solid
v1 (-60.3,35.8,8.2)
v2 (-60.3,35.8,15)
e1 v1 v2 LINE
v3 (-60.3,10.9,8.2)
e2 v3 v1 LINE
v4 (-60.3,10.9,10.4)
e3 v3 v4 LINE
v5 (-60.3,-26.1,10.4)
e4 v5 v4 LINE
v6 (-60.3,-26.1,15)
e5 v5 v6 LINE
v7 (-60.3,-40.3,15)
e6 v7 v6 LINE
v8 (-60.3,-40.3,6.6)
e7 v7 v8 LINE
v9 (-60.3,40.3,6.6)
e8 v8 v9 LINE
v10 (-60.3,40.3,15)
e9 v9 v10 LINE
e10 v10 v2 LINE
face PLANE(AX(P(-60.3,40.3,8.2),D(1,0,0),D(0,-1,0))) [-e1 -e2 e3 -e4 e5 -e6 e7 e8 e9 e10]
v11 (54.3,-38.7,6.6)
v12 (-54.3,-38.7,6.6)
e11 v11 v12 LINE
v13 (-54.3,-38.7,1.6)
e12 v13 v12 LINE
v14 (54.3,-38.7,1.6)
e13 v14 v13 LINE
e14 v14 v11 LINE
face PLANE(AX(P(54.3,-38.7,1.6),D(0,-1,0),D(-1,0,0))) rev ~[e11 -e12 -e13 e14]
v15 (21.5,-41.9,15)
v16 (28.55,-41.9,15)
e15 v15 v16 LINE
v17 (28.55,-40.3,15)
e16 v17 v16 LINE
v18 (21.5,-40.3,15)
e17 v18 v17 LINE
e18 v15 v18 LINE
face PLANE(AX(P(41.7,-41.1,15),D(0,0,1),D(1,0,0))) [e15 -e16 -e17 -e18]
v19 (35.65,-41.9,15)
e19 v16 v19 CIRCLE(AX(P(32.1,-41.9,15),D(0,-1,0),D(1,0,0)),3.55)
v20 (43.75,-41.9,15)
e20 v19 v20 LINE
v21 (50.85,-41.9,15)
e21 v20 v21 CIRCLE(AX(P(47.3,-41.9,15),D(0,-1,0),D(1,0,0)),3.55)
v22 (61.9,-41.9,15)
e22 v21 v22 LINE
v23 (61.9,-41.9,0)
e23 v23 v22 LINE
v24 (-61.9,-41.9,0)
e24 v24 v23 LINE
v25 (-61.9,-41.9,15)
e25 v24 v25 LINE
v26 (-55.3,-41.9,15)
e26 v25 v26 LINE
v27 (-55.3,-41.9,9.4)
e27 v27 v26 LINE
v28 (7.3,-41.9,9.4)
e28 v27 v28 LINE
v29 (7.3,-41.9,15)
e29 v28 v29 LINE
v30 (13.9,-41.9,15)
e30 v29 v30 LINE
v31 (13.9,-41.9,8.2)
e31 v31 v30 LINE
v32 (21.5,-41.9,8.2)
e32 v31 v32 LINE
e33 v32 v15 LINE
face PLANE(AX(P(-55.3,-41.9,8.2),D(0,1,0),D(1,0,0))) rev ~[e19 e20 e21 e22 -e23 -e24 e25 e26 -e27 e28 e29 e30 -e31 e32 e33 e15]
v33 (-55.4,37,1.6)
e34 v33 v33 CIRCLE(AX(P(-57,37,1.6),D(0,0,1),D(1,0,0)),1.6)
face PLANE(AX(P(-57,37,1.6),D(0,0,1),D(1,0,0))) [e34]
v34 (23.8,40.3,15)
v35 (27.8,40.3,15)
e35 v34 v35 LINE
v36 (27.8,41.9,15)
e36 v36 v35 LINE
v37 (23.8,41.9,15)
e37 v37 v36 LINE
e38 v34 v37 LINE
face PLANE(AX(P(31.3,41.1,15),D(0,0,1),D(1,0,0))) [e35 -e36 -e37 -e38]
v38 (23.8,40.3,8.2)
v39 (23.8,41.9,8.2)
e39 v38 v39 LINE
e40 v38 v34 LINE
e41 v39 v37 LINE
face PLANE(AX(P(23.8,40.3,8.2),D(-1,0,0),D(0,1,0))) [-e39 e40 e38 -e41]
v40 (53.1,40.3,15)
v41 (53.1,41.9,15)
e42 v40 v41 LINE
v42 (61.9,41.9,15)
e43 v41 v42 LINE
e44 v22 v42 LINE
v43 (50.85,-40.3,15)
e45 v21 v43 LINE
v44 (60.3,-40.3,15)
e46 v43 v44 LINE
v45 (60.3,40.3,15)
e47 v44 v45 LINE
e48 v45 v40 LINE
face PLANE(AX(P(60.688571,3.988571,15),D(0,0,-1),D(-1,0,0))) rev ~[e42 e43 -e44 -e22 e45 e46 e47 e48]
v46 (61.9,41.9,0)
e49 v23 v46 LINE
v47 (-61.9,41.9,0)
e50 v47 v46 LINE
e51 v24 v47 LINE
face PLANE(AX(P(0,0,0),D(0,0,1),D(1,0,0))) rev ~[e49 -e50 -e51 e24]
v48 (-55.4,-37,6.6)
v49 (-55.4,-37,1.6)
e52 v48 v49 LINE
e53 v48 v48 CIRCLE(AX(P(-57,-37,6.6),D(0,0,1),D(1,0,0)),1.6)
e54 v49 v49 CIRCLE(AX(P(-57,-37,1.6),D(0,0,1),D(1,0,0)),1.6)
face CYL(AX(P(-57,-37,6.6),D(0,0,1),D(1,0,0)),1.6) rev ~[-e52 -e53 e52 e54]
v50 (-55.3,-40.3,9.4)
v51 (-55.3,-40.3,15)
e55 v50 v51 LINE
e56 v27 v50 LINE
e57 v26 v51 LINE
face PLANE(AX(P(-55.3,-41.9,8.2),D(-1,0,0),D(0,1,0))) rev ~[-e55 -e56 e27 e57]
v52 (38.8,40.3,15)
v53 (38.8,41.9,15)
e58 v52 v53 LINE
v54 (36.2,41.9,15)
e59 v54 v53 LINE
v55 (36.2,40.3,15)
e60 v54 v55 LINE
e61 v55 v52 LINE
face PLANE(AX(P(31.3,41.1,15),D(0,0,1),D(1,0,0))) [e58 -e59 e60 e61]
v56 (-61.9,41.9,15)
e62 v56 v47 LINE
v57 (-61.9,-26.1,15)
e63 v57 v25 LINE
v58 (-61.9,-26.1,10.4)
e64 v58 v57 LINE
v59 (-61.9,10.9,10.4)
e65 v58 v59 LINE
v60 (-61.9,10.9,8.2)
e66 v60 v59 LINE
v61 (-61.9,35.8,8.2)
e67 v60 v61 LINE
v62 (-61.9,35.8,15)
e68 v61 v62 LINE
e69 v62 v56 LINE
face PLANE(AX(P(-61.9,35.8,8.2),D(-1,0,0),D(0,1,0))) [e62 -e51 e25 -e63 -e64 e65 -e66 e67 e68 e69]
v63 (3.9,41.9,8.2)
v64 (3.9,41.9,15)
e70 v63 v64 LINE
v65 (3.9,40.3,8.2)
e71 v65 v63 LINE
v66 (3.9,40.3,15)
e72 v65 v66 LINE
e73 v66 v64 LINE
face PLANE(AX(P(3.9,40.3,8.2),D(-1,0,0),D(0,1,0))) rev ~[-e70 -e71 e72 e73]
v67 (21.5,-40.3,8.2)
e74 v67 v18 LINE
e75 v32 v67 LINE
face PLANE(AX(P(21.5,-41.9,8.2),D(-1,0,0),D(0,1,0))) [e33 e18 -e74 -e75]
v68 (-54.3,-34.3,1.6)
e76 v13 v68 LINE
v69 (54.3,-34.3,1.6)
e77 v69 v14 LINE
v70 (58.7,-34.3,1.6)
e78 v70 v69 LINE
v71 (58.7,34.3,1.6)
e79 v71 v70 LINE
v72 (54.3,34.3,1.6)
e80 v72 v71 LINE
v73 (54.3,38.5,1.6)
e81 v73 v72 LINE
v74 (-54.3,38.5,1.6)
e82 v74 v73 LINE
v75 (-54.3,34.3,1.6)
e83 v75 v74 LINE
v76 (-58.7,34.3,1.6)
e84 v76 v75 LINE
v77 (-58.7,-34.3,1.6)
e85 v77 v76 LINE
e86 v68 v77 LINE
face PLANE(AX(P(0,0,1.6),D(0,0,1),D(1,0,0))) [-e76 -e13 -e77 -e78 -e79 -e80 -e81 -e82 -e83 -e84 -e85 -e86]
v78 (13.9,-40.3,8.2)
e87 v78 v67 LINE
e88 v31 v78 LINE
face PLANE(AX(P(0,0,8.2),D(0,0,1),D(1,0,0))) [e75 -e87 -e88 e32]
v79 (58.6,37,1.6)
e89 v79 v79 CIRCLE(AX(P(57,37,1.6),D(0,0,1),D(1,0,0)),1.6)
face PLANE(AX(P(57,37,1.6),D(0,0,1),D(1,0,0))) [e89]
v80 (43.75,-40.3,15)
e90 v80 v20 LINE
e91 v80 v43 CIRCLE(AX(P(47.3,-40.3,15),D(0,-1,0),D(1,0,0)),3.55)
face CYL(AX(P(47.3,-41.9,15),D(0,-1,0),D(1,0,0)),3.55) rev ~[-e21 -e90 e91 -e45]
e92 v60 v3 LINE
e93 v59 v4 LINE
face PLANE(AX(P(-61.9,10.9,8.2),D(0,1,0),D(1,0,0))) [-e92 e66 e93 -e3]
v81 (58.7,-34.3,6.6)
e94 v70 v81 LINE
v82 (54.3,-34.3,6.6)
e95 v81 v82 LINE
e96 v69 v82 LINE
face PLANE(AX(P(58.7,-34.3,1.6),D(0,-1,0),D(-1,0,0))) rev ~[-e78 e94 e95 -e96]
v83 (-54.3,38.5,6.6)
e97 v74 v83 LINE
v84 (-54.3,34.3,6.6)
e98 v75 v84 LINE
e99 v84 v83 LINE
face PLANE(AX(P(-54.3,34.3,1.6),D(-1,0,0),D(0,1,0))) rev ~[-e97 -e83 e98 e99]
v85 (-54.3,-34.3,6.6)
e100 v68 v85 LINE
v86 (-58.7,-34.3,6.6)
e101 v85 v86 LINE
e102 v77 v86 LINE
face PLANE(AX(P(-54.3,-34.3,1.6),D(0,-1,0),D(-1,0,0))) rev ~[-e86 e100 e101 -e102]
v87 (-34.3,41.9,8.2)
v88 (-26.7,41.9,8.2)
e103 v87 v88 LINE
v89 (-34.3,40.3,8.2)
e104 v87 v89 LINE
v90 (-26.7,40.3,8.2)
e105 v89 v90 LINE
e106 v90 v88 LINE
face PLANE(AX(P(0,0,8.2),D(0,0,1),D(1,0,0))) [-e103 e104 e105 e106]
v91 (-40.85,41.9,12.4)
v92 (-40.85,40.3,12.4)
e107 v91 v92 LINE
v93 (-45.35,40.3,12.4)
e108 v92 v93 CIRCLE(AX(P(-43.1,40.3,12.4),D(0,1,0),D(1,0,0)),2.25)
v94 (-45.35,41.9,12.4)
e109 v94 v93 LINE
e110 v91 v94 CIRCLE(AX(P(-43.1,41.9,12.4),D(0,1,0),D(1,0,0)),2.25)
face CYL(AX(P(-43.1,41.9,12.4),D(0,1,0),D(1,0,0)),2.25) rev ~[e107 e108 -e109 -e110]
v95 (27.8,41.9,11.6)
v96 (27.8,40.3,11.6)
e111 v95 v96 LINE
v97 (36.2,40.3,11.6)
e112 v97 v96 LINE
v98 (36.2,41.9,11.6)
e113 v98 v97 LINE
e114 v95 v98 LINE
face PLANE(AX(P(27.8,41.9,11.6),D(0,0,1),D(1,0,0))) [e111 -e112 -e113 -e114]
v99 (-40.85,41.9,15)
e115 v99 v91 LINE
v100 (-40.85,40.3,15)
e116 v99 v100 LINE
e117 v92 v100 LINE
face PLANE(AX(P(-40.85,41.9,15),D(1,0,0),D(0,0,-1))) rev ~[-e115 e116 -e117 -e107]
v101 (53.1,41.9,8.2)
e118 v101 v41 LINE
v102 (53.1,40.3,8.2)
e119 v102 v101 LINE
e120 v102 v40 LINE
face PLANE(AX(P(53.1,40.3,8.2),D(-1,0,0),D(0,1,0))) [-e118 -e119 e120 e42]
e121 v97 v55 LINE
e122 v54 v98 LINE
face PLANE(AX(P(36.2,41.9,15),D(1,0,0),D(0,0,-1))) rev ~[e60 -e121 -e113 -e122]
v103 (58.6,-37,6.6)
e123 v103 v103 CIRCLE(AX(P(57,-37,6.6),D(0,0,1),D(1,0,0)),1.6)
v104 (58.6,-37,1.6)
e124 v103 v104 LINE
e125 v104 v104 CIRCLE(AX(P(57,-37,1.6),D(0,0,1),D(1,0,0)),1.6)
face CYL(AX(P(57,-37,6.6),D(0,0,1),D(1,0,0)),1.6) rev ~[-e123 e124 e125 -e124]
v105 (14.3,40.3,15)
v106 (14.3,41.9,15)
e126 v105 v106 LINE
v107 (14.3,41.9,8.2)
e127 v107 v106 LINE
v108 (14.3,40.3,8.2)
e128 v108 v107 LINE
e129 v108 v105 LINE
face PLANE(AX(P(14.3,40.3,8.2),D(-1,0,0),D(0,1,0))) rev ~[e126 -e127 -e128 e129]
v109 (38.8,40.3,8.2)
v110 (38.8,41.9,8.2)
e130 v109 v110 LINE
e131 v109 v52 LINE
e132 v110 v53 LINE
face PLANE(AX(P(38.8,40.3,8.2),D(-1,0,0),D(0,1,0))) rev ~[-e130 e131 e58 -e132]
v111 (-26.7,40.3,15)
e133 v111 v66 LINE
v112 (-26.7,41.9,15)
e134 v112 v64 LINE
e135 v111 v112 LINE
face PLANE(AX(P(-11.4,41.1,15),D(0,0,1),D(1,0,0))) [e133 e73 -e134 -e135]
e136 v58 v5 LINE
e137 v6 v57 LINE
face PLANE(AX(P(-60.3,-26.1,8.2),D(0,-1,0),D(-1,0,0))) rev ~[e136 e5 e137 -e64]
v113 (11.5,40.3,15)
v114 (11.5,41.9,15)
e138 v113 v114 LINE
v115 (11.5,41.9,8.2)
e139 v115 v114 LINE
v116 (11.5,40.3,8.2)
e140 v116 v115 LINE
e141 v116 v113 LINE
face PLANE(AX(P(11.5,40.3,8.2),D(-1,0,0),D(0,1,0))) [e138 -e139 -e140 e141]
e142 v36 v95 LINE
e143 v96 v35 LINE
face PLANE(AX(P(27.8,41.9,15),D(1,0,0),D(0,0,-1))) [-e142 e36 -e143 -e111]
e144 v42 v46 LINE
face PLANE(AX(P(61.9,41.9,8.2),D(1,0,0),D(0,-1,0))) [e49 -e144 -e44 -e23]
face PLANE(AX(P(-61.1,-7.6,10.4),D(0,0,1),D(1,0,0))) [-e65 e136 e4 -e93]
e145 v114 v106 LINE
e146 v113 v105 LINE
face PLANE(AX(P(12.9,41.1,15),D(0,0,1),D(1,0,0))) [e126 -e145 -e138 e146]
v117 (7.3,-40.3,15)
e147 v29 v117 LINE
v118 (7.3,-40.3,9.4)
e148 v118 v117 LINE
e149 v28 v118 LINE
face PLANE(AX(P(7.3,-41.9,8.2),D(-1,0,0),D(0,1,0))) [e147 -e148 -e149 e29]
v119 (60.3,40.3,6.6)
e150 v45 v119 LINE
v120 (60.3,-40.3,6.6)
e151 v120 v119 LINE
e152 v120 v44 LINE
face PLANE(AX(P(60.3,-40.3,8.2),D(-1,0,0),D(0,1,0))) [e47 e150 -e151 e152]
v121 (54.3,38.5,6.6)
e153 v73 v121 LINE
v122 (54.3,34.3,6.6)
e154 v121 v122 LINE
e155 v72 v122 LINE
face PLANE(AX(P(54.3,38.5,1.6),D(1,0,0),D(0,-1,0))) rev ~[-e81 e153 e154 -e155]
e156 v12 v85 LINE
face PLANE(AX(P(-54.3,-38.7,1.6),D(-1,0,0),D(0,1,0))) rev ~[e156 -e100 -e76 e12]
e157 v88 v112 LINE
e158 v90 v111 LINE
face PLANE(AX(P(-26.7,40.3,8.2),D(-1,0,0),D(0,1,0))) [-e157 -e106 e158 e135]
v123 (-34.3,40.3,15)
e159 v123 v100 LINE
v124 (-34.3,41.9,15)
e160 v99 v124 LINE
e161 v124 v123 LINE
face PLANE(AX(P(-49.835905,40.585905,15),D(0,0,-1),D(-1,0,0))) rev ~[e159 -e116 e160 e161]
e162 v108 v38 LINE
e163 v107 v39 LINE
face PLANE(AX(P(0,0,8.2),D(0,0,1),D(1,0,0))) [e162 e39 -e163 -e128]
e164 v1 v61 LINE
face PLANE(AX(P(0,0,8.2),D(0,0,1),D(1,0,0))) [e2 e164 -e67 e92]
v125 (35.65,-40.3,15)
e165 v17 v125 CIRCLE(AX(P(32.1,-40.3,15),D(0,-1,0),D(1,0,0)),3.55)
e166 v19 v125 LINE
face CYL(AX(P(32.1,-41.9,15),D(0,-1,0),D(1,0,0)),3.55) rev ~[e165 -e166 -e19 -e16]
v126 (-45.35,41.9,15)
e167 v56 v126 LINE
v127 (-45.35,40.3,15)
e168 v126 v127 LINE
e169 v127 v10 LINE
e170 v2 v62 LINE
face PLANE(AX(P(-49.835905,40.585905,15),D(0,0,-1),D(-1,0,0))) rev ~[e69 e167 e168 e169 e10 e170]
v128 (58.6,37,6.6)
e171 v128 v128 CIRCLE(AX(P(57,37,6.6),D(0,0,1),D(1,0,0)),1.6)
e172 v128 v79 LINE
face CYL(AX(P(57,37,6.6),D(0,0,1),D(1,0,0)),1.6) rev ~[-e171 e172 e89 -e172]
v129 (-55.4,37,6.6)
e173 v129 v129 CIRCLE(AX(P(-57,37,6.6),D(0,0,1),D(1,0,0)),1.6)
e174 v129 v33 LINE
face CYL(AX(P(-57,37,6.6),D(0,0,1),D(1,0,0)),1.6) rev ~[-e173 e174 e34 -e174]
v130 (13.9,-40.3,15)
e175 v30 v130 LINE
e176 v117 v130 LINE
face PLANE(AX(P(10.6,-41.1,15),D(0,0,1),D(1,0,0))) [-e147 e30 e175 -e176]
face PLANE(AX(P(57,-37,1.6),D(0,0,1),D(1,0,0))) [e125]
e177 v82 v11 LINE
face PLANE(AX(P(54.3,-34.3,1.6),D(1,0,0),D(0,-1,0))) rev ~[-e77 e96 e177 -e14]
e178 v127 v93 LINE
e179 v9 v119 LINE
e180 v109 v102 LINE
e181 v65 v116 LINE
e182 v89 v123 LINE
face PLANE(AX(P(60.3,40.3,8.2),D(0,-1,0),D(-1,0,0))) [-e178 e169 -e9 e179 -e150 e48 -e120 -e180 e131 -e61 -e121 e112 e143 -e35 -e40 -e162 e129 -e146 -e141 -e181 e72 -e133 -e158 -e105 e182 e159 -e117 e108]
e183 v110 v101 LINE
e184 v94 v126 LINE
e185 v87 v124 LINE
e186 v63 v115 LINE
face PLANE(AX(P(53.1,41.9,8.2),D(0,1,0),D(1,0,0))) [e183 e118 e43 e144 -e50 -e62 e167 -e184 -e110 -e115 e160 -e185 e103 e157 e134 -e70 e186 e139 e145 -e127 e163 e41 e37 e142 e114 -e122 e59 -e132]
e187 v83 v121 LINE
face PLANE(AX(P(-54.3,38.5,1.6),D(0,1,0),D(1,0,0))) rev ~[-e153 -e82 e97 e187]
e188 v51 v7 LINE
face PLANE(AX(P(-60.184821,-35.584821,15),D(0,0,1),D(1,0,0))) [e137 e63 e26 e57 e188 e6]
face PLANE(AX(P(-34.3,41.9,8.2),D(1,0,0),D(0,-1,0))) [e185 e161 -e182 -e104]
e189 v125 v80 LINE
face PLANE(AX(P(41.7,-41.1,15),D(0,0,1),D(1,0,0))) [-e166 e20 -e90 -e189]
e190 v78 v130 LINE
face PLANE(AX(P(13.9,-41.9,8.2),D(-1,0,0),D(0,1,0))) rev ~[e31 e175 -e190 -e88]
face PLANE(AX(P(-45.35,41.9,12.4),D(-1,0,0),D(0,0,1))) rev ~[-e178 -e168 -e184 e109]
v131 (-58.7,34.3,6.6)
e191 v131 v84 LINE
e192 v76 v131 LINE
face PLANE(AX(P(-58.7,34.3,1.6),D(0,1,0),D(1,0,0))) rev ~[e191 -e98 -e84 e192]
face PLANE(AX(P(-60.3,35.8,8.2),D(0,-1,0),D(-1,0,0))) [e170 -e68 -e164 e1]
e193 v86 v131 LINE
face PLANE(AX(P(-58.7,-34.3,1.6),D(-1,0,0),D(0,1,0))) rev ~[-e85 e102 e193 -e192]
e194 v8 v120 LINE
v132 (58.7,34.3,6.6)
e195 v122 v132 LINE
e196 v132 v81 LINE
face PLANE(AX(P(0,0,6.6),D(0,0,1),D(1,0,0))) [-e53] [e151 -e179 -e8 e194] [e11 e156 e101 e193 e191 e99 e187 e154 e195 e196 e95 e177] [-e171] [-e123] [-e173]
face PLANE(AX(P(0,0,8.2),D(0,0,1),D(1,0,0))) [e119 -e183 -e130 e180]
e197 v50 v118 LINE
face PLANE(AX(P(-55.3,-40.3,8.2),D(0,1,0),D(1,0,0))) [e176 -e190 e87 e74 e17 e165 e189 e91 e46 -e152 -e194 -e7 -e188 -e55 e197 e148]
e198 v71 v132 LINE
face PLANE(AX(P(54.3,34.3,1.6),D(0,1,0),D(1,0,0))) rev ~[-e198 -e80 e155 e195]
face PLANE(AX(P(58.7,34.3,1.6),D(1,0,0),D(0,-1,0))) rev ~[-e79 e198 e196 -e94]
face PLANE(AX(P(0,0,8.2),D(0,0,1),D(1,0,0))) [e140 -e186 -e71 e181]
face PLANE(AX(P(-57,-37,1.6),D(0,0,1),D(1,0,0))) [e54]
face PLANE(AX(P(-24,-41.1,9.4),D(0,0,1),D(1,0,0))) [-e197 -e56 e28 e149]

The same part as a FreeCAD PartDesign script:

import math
import FreeCAD as App
import Part
import Sketcher

V = App.Vector
Q = App.Units.Quantity

doc = App.newDocument("Part")
body = doc.addObject("PartDesign::Body", "Body")

sketch1 = doc.addObject("Sketcher::SketchObject", "Sketch")
body.addObject(sketch1)
sketch1.AttachmentSupport = (doc.XY_Plane, [""])
sketch1.MapMode = "FlatFace"
sketch1.addGeometry([
    Part.LineSegment(V(-60.3, 40.3, 0), V(-60.3, -40.3, 0)),
    Part.LineSegment(V(-60.3, -40.3, 0), V(60.3, -40.3, 0)),
    Part.LineSegment(V(60.3, -40.3, 0), V(60.3, 40.3, 0)),
    Part.LineSegment(V(60.3, 40.3, 0), V(-60.3, 40.3, 0)),
], False)
sketch1.addConstraint([
    Sketcher.Constraint("Coincident", 0, 2, 1, 1),
    Sketcher.Constraint("Coincident", 1, 2, 2, 1),
    Sketcher.Constraint("Coincident", 2, 2, 3, 1),
    Sketcher.Constraint("Coincident", 3, 2, 0, 1),
    Sketcher.Constraint("Vertical", 0),
    Sketcher.Constraint("Horizontal", 1),
    Sketcher.Constraint("Vertical", 2),
    Sketcher.Constraint("Horizontal", 3),
    Sketcher.Constraint("Symmetric", 0, 2, 2, 2, -1, 1),
    Sketcher.Constraint("DistanceX", 1, 1, 1, 2, Q("120.6 mm")),
    Sketcher.Constraint("DistanceY", 0, 2, 0, 1, Q("80.6 mm")),
])
pad1 = doc.addObject("PartDesign::Pad", "Pad")
body.addObject(pad1)
pad1.Profile = sketch1
pad1.Length = 1.6

sketch2 = doc.addObject("Sketcher::SketchObject", "Sketch001")
body.addObject(sketch2)
sketch2.AttachmentSupport = (doc.XY_Plane, [""])
sketch2.MapMode = "FlatFace"
sketch2.addGeometry([
    Part.LineSegment(V(-61.9, 41.9, 0), V(-61.9, -41.9, 0)),
    Part.LineSegment(V(-61.9, -41.9, 0), V(61.9, -41.9, 0)),
    Part.LineSegment(V(61.9, -41.9, 0), V(61.9, 41.9, 0)),
    Part.LineSegment(V(61.9, 41.9, 0), V(-61.9, 41.9, 0)),
    Part.LineSegment(V(60.3, -40.3, 0), V(-60.3, -40.3, 0)),
    Part.LineSegment(V(-60.3, -40.3, 0), V(-60.3, 40.3, 0)),
    Part.LineSegment(V(-60.3, 40.3, 0), V(60.3, 40.3, 0)),
    Part.LineSegment(V(60.3, 40.3, 0), V(60.3, -40.3, 0)),
], False)
sketch2.addConstraint([
    Sketcher.Constraint("Coincident", 0, 2, 1, 1),
    Sketcher.Constraint("Coincident", 1, 2, 2, 1),
    Sketcher.Constraint("Coincident", 2, 2, 3, 1),
    Sketcher.Constraint("Coincident", 3, 2, 0, 1),
    Sketcher.Constraint("Coincident", 4, 2, 5, 1),
    Sketcher.Constraint("Coincident", 5, 2, 6, 1),
    Sketcher.Constraint("Coincident", 6, 2, 7, 1),
    Sketcher.Constraint("Coincident", 7, 2, 4, 1),
    Sketcher.Constraint("Vertical", 0),
    Sketcher.Constraint("Horizontal", 1),
    Sketcher.Constraint("Vertical", 2),
    Sketcher.Constraint("Horizontal", 3),
    Sketcher.Constraint("Horizontal", 4),
    Sketcher.Constraint("Vertical", 5),
    Sketcher.Constraint("Horizontal", 6),
    Sketcher.Constraint("Vertical", 7),
    Sketcher.Constraint("Symmetric", 0, 2, 2, 2, -1, 1),
    Sketcher.Constraint("Symmetric", 4, 2, 6, 2, -1, 1),
    Sketcher.Constraint("DistanceX", 1, 1, 1, 2, Q("123.8 mm")),
    Sketcher.Constraint("DistanceX", 4, 2, 4, 1, Q("120.6 mm")),
    Sketcher.Constraint("DistanceY", 0, 2, 0, 1, Q("83.8 mm")),
    Sketcher.Constraint("DistanceY", 5, 1, 5, 2, Q("80.6 mm")),
])
pad2 = doc.addObject("PartDesign::Pad", "Pad001")
body.addObject(pad2)
pad2.Profile = sketch2
pad2.Length = 8.2

sketch3 = doc.addObject("Sketcher::SketchObject", "Sketch002")
body.addObject(sketch3)
sketch3.AttachmentSupport = (doc.XY_Plane, [""])
sketch3.MapMode = "FlatFace"
sketch3.AttachmentOffset = App.Placement(V(0, 0, 1.6), App.Rotation())
sketch3.addGeometry([
    Part.LineSegment(V(-60.3, 40.3, 0), V(-60.3, -40.3, 0)),
    Part.LineSegment(V(-60.3, -40.3, 0), V(60.3, -40.3, 0)),
    Part.LineSegment(V(60.3, -40.3, 0), V(60.3, 40.3, 0)),
    Part.LineSegment(V(60.3, 40.3, 0), V(-60.3, 40.3, 0)),
    Part.LineSegment(V(-58.7, -34.3, 0), V(-58.7, 34.3, 0)),
    Part.LineSegment(V(-58.7, 34.3, 0), V(-54.3, 34.3, 0)),
    Part.LineSegment(V(-54.3, 34.3, 0), V(-54.3, 38.5, 0)),
    Part.LineSegment(V(-54.3, 38.5, 0), V(54.3, 38.5, 0)),
    Part.LineSegment(V(54.3, 38.5, 0), V(54.3, 34.3, 0)),
    Part.LineSegment(V(54.3, 34.3, 0), V(58.7, 34.3, 0)),
    Part.LineSegment(V(58.7, 34.3, 0), V(58.7, -34.3, 0)),
    Part.LineSegment(V(58.7, -34.3, 0), V(54.3, -34.3, 0)),
    Part.LineSegment(V(54.3, -34.3, 0), V(54.3, -38.7, 0)),
    Part.LineSegment(V(54.3, -38.7, 0), V(-54.3, -38.7, 0)),
    Part.LineSegment(V(-54.3, -38.7, 0), V(-54.3, -34.3, 0)),
    Part.LineSegment(V(-54.3, -34.3, 0), V(-58.7, -34.3, 0)),
], False)
sketch3.addConstraint([
    Sketcher.Constraint("Coincident", 0, 2, 1, 1),
    Sketcher.Constraint("Coincident", 1, 2, 2, 1),
    Sketcher.Constraint("Coincident", 2, 2, 3, 1),
    Sketcher.Constraint("Coincident", 3, 2, 0, 1),
    Sketcher.Constraint("Coincident", 4, 2, 5, 1),
    Sketcher.Constraint("Coincident", 5, 2, 6, 1),
    Sketcher.Constraint("Coincident", 6, 2, 7, 1),
    Sketcher.Constraint("Coincident", 7, 2, 8, 1),
    Sketcher.Constraint("Coincident", 8, 2, 9, 1),
    Sketcher.Constraint("Coincident", 9, 2, 10, 1),
    Sketcher.Constraint("Coincident", 10, 2, 11, 1),
    Sketcher.Constraint("Coincident", 11, 2, 12, 1),
    Sketcher.Constraint("Coincident", 12, 2, 13, 1),
    Sketcher.Constraint("Coincident", 13, 2, 14, 1),
    Sketcher.Constraint("Coincident", 14, 2, 15, 1),
    Sketcher.Constraint("Coincident", 15, 2, 4, 1),
    Sketcher.Constraint("Vertical", 0),
    Sketcher.Constraint("Horizontal", 1),
    Sketcher.Constraint("Vertical", 2),
    Sketcher.Constraint("Horizontal", 3),
    Sketcher.Constraint("Vertical", 4),
    Sketcher.Constraint("Horizontal", 5),
    Sketcher.Constraint("Vertical", 6),
    Sketcher.Constraint("Horizontal", 7),
    Sketcher.Constraint("Vertical", 8),
    Sketcher.Constraint("Horizontal", 9),
    Sketcher.Constraint("Vertical", 10),
    Sketcher.Constraint("Horizontal", 11),
    Sketcher.Constraint("Vertical", 12),
    Sketcher.Constraint("Horizontal", 13),
    Sketcher.Constraint("Vertical", 14),
    Sketcher.Constraint("Horizontal", 15),
    Sketcher.Constraint("Symmetric", 0, 2, 2, 2, -1, 1),
    Sketcher.Constraint("Symmetric", 4, 2, 10, 2, -1, 1),
    Sketcher.Constraint("Symmetric", 8, 2, 14, 2, -1, 1),
    Sketcher.Constraint("Symmetric", 5, 2, 8, 2, -2),
    Sketcher.Constraint("Vertical", 8, 2, 11, 2),
    Sketcher.Constraint("Equal", 15, 12),
    Sketcher.Constraint("DistanceX", 1, 1, 1, 2, Q("120.6 mm")),
    Sketcher.Constraint("DistanceX", 5, 1, 5, 2, Q("4.4 mm")),
    Sketcher.Constraint("DistanceX", 7, 1, 7, 2, Q("108.6 mm")),
    Sketcher.Constraint("DistanceY", 0, 2, 0, 1, Q("80.6 mm")),
    Sketcher.Constraint("DistanceY", 4, 1, 4, 2, Q("68.6 mm")),
    Sketcher.Constraint("DistanceY", 6, 1, 6, 2, Q("4.2 mm")),
])
pad3 = doc.addObject("PartDesign::Pad", "Pad002")
body.addObject(pad3)
pad3.Profile = sketch3
pad3.Length = 5

sketch4 = doc.addObject("Sketcher::SketchObject", "Sketch003")
body.addObject(sketch4)
sketch4.AttachmentSupport = (doc.XY_Plane, [""])
sketch4.MapMode = "FlatFace"
sketch4.AttachmentOffset = App.Placement(V(0, 0, 6.6), App.Rotation())
sketch4.addGeometry([
    Part.Circle(V(-57, 37, 0), V(0, 0, 1), 1.6),
    Part.Circle(V(57, 37, 0), V(0, 0, 1), 1.6),
    Part.Circle(V(57, -37, 0), V(0, 0, 1), 1.6),
    Part.Circle(V(-57, -37, 0), V(0, 0, 1), 1.6),
], False)
sketch4.addConstraint([
    Sketcher.Constraint("Equal", 0, 1),
    Sketcher.Constraint("Equal", 1, 2),
    Sketcher.Constraint("Equal", 2, 3),
    Sketcher.Constraint("Symmetric", 0, 3, 2, 3, -1, 1),
    Sketcher.Constraint("Symmetric", 1, 3, 3, 3, -1, 1),
    Sketcher.Constraint("Symmetric", 0, 3, 1, 3, -2),
    Sketcher.Constraint("Diameter", 0, Q("3.2 mm")),
    Sketcher.Constraint("DistanceX", 0, 3, -1, 1, Q("57 mm")),
    Sketcher.Constraint("DistanceY", -1, 1, 0, 3, Q("37 mm")),
])
pocket1 = doc.addObject("PartDesign::Pocket", "Pocket")
body.addObject(pocket1)
pocket1.Profile = sketch4
pocket1.Length = 5

sketch5 = doc.addObject("Sketcher::SketchObject", "Sketch004")
body.addObject(sketch5)
sketch5.AttachmentSupport = (doc.XY_Plane, [""])
sketch5.MapMode = "FlatFace"
sketch5.AttachmentOffset = App.Placement(V(0, 0, 8.2), App.Rotation())
sketch5.addGeometry([
    Part.LineSegment(V(21.5, -40.3, 0), V(21.5, -41.9, 0)),
    Part.LineSegment(V(21.5, -41.9, 0), V(61.9, -41.9, 0)),
    Part.LineSegment(V(61.9, -41.9, 0), V(61.9, -40.3, 0)),
    Part.LineSegment(V(61.9, -40.3, 0), V(21.5, -40.3, 0)),
    Part.LineSegment(V(7.3, -40.3, 0), V(7.3, -41.9, 0)),
    Part.LineSegment(V(7.3, -41.9, 0), V(13.9, -41.9, 0)),
    Part.LineSegment(V(13.9, -41.9, 0), V(13.9, -40.3, 0)),
    Part.LineSegment(V(13.9, -40.3, 0), V(7.3, -40.3, 0)),
], False)
sketch5.addConstraint([
    Sketcher.Constraint("Coincident", 0, 2, 1, 1),
    Sketcher.Constraint("Coincident", 1, 2, 2, 1),
    Sketcher.Constraint("Coincident", 2, 2, 3, 1),
    Sketcher.Constraint("Coincident", 3, 2, 0, 1),
    Sketcher.Constraint("Coincident", 4, 2, 5, 1),
    Sketcher.Constraint("Coincident", 5, 2, 6, 1),
    Sketcher.Constraint("Coincident", 6, 2, 7, 1),
    Sketcher.Constraint("Coincident", 7, 2, 4, 1),
    Sketcher.Constraint("Vertical", 0),
    Sketcher.Constraint("Horizontal", 1),
    Sketcher.Constraint("Vertical", 2),
    Sketcher.Constraint("Horizontal", 3),
    Sketcher.Constraint("Vertical", 4),
    Sketcher.Constraint("Horizontal", 5),
    Sketcher.Constraint("Vertical", 6),
    Sketcher.Constraint("Horizontal", 7),
    Sketcher.Constraint("Horizontal", 1, 2, 4, 2),
    Sketcher.Constraint("Horizontal", 3, 2, 6, 2),
    Sketcher.Constraint("DistanceX", 1, 1, 1, 2, Q("40.4 mm")),
    Sketcher.Constraint("DistanceX", 5, 1, 5, 2, Q("6.6 mm")),
    Sketcher.Constraint("DistanceY", 0, 2, 0, 1, Q("1.6 mm")),
    Sketcher.Constraint("DistanceX", 5, 2, 1, 2, Q("48 mm")),
    Sketcher.Constraint("DistanceX", -1, 1, 0, 2, Q("21.5 mm")),
    Sketcher.Constraint("DistanceY", 0, 2, -1, 1, Q("41.9 mm")),
])
pad4 = doc.addObject("PartDesign::Pad", "Pad003")
body.addObject(pad4)
pad4.Profile = sketch5
pad4.Length = 6.8

sketch6 = doc.addObject("Sketcher::SketchObject", "Sketch005")
body.addObject(sketch6)
sketch6.AttachmentSupport = (doc.XZ_Plane, [""])
sketch6.MapMode = "FlatFace"
sketch6.AttachmentOffset = App.Placement(V(0, 0, 41.9), App.Rotation())
sketch6.addGeometry([
    Part.Circle(V(32.1, 15, 0), V(0, 0, 1), 3.55),
    Part.Circle(V(47.3, 15, 0), V(0, 0, 1), 3.55),
], False)
sketch6.addConstraint([
    Sketcher.Constraint("Equal", 0, 1),
    Sketcher.Constraint("Horizontal", 0, 3, 1, 3),
    Sketcher.Constraint("Diameter", 0, Q("7.1 mm")),
    Sketcher.Constraint("DistanceY", -1, 1, 0, 3, Q("15 mm")),
    Sketcher.Constraint("DistanceX", -1, 1, 0, 3, Q("32.1 mm")),
    Sketcher.Constraint("DistanceX", -1, 1, 1, 3, Q("47.3 mm")),
])
pocket2 = doc.addObject("PartDesign::Pocket", "Pocket001")
body.addObject(pocket2)
pocket2.Profile = sketch6
pocket2.Length = 6.8

sketch7 = doc.addObject("Sketcher::SketchObject", "Sketch006")
body.addObject(sketch7)
sketch7.AttachmentSupport = (doc.XY_Plane, [""])
sketch7.MapMode = "FlatFace"
sketch7.AttachmentOffset = App.Placement(V(0, 0, 8.2), App.Rotation())
sketch7.addGeometry([
    Part.LineSegment(V(-61.9, -26.1, 0), V(-61.9, -41.9, 0)),
    Part.LineSegment(V(-61.9, -41.9, 0), V(-55.3, -41.9, 0)),
    Part.LineSegment(V(-55.3, -41.9, 0), V(-55.3, -40.3, 0)),
    Part.LineSegment(V(-55.3, -40.3, 0), V(-60.3, -40.3, 0)),
    Part.LineSegment(V(-60.3, -40.3, 0), V(-60.3, -26.1, 0)),
    Part.LineSegment(V(-60.3, -26.1, 0), V(-61.9, -26.1, 0)),
], False)
sketch7.addConstraint([
    Sketcher.Constraint("Coincident", 0, 2, 1, 1),
    Sketcher.Constraint("Coincident", 1, 2, 2, 1),
    Sketcher.Constraint("Coincident", 2, 2, 3, 1),
    Sketcher.Constraint("Coincident", 3, 2, 4, 1),
    Sketcher.Constraint("Coincident", 4, 2, 5, 1),
    Sketcher.Constraint("Coincident", 5, 2, 0, 1),
    Sketcher.Constraint("Vertical", 0),
    Sketcher.Constraint("Horizontal", 1),
    Sketcher.Constraint("Vertical", 2),
    Sketcher.Constraint("Horizontal", 3),
    Sketcher.Constraint("Vertical", 4),
    Sketcher.Constraint("Horizontal", 5),
    Sketcher.Constraint("Equal", 5, 2),
    Sketcher.Constraint("DistanceX", 3, 2, 3, 1, Q("5 mm")),
    Sketcher.Constraint("DistanceX", 1, 1, 1, 2, Q("6.6 mm")),
    Sketcher.Constraint("DistanceY", 0, 2, 0, 1, Q("15.8 mm")),
    Sketcher.Constraint("DistanceX", 0, 2, -1, 1, Q("61.9 mm")),
    Sketcher.Constraint("DistanceY", 0, 2, -1, 1, Q("41.9 mm")),
])
pad5 = doc.addObject("PartDesign::Pad", "Pad004")
body.addObject(pad5)
pad5.Profile = sketch7
pad5.Length = 6.8

sketch8 = doc.addObject("Sketcher::SketchObject", "Sketch007")
body.addObject(sketch8)
sketch8.AttachmentSupport = (doc.XY_Plane, [""])
sketch8.MapMode = "FlatFace"
sketch8.AttachmentOffset = App.Placement(V(0, 0, 8.2), App.Rotation())
sketch8.addGeometry([
    Part.LineSegment(V(-61.9, 10.9, 0), V(-61.9, -26.1, 0)),
    Part.LineSegment(V(-61.9, -26.1, 0), V(-60.3, -26.1, 0)),
    Part.LineSegment(V(-60.3, -26.1, 0), V(-60.3, 10.9, 0)),
    Part.LineSegment(V(-60.3, 10.9, 0), V(-61.9, 10.9, 0)),
], False)
sketch8.addConstraint([
    Sketcher.Constraint("Coincident", 0, 2, 1, 1),
    Sketcher.Constraint("Coincident", 1, 2, 2, 1),
    Sketcher.Constraint("Coincident", 2, 2, 3, 1),
    Sketcher.Constraint("Coincident", 3, 2, 0, 1),
    Sketcher.Constraint("Vertical", 0),
    Sketcher.Constraint("Horizontal", 1),
    Sketcher.Constraint("Vertical", 2),
    Sketcher.Constraint("Horizontal", 3),
    Sketcher.Constraint("DistanceY", 0, 2, 0, 1, Q("37 mm")),
    Sketcher.Constraint("DistanceX", 1, 1, 1, 2, Q("1.6 mm")),
    Sketcher.Constraint("DistanceX", 0, 2, -1, 1, Q("61.9 mm")),
    Sketcher.Constraint("DistanceY", 0, 2, -1, 1, Q("26.1 mm")),
])
pad6 = doc.addObject("PartDesign::Pad", "Pad005")
body.addObject(pad6)
pad6.Profile = sketch8
pad6.Length = 2.2

sketch9 = doc.addObject("Sketcher::SketchObject", "Sketch008")
body.addObject(sketch9)
sketch9.AttachmentSupport = (doc.XY_Plane, [""])
sketch9.MapMode = "FlatFace"
sketch9.AttachmentOffset = App.Placement(V(0, 0, 8.2), App.Rotation())
sketch9.addGeometry([
    Part.LineSegment(V(-61.9, 35.8, 0), V(-60.3, 35.8, 0)),
    Part.LineSegment(V(-60.3, 35.8, 0), V(-60.3, 40.3, 0)),
    Part.LineSegment(V(-60.3, 40.3, 0), V(-34.3, 40.3, 0)),
    Part.LineSegment(V(-34.3, 40.3, 0), V(-34.3, 41.9, 0)),
    Part.LineSegment(V(-34.3, 41.9, 0), V(-61.9, 41.9, 0)),
    Part.LineSegment(V(-61.9, 41.9, 0), V(-61.9, 35.8, 0)),
    Part.LineSegment(V(-26.7, 41.9, 0), V(-26.7, 40.3, 0)),
    Part.LineSegment(V(-26.7, 40.3, 0), V(3.9, 40.3, 0)),
    Part.LineSegment(V(3.9, 40.3, 0), V(3.9, 41.9, 0)),
    Part.LineSegment(V(3.9, 41.9, 0), V(-26.7, 41.9, 0)),
    Part.LineSegment(V(11.5, 41.9, 0), V(11.5, 40.3, 0)),
    Part.LineSegment(V(11.5, 40.3, 0), V(14.3, 40.3, 0)),
    Part.LineSegment(V(14.3, 40.3, 0), V(14.3, 41.9, 0)),
    Part.LineSegment(V(14.3, 41.9, 0), V(11.5, 41.9, 0)),
], False)
sketch9.addConstraint([
    Sketcher.Constraint("Coincident", 0, 2, 1, 1),
    Sketcher.Constraint("Coincident", 1, 2, 2, 1),
    Sketcher.Constraint("Coincident", 2, 2, 3, 1),
    Sketcher.Constraint("Coincident", 3, 2, 4, 1),
    Sketcher.Constraint("Coincident", 4, 2, 5, 1),
    Sketcher.Constraint("Coincident", 5, 2, 0, 1),
    Sketcher.Constraint("Coincident", 6, 2, 7, 1),
    Sketcher.Constraint("Coincident", 7, 2, 8, 1),
    Sketcher.Constraint("Coincident", 8, 2, 9, 1),
    Sketcher.Constraint("Coincident", 9, 2, 6, 1),
    Sketcher.Constraint("Coincident", 10, 2, 11, 1),
    Sketcher.Constraint("Coincident", 11, 2, 12, 1),
    Sketcher.Constraint("Coincident", 12, 2, 13, 1),
    Sketcher.Constraint("Coincident", 13, 2, 10, 1),
    Sketcher.Constraint("Horizontal", 0),
    Sketcher.Constraint("Vertical", 1),
    Sketcher.Constraint("Horizontal", 2),
    Sketcher.Constraint("Vertical", 3),
    Sketcher.Constraint("Horizontal", 4),
    Sketcher.Constraint("Vertical", 5),
    Sketcher.Constraint("Vertical", 6),
    Sketcher.Constraint("Horizontal", 7),
    Sketcher.Constraint("Vertical", 8),
    Sketcher.Constraint("Horizontal", 9),
    Sketcher.Constraint("Vertical", 10),
    Sketcher.Constraint("Horizontal", 11),
    Sketcher.Constraint("Vertical", 12),
    Sketcher.Constraint("Horizontal", 13),
    Sketcher.Constraint("Horizontal", 2, 2, 6, 2),
    Sketcher.Constraint("Horizontal", 4, 2, 8, 2),
    Sketcher.Constraint("Horizontal", 7, 2, 10, 2),
    Sketcher.Constraint("Horizontal", 9, 2, 12, 2),
    Sketcher.Constraint("Equal", 0, 3),
    Sketcher.Constraint("DistanceX", 2, 1, 2, 2, Q("26 mm")),
    Sketcher.Constraint("DistanceX", 0, 1, 0, 2, Q("1.6 mm")),
    Sketcher.Constraint("DistanceX", 7, 1, 7, 2, Q("30.6 mm")),
    Sketcher.Constraint("DistanceX", 11, 1, 11, 2, Q("2.8 mm")),
    Sketcher.Constraint("DistanceY", 1, 1, 1, 2, Q("4.5 mm")),
    Sketcher.Constraint("DistanceX", 6, 2, 11, 2, Q("41 mm")),
    Sketcher.Constraint("DistanceX", 0, 2, -1, 1, Q("60.3 mm")),
    Sketcher.Constraint("DistanceY", -1, 1, 0, 2, Q("35.8 mm")),
    Sketcher.Constraint("DistanceX", 6, 2, -1, 1, Q("26.7 mm")),
])
pad7 = doc.addObject("PartDesign::Pad", "Pad006")
body.addObject(pad7)
pad7.Profile = sketch9
pad7.Length = 6.8

sketch10 = doc.addObject("Sketcher::SketchObject", "Sketch009")
body.addObject(sketch10)
sketch10.AttachmentSupport = (doc.XZ_Plane, [""])
sketch10.MapMode = "FlatFace"
sketch10.AttachmentOffset = App.Placement(V(0, 0, -41.9), App.Rotation())
sketch10.addGeometry([
    Part.LineSegment(V(-45.35, 12.4, 0), V(-45.35, 15, 0)),
    Part.LineSegment(V(-45.35, 15, 0), V(-40.85, 15, 0)),
    Part.LineSegment(V(-40.85, 15, 0), V(-40.85, 12.4, 0)),
    Part.ArcOfCircle(Part.Circle(V(-43.1, 12.4, 0), V(0, 0, 1), 2.25), math.radians(180), math.radians(360)),
], False)
sketch10.addConstraint([
    Sketcher.Constraint("Coincident", 0, 2, 1, 1),
    Sketcher.Constraint("Coincident", 1, 2, 2, 1),
    Sketcher.Constraint("Tangent", 2, 2, 3, 2),
    Sketcher.Constraint("Tangent", 3, 1, 0, 1),
    Sketcher.Constraint("Vertical", 0),
    Sketcher.Constraint("Horizontal", 1),
    Sketcher.Constraint("Vertical", 2),
    Sketcher.Constraint("Radius", 3, Q("2.25 mm")),
    Sketcher.Constraint("DistanceY", 0, 1, 0, 2, Q("2.6 mm")),
    Sketcher.Constraint("DistanceY", -1, 1, 0, 2, Q("15 mm")),
    Sketcher.Constraint("DistanceX", 3, 3, -1, 1, Q("43.1 mm")),
])
pocket3 = doc.addObject("PartDesign::Pocket", "Pocket002")
body.addObject(pocket3)
pocket3.Profile = sketch10
pocket3.Length = 6.8
pocket3.Reversed = True

sketch11 = doc.addObject("Sketcher::SketchObject", "Sketch010")
body.addObject(sketch11)
sketch11.AttachmentSupport = (doc.XY_Plane, [""])
sketch11.MapMode = "FlatFace"
sketch11.AttachmentOffset = App.Placement(V(0, 0, 8.2), App.Rotation())
sketch11.addGeometry([
    Part.LineSegment(V(23.8, 41.9, 0), V(23.8, 40.3, 0)),
    Part.LineSegment(V(23.8, 40.3, 0), V(38.8, 40.3, 0)),
    Part.LineSegment(V(38.8, 40.3, 0), V(38.8, 41.9, 0)),
    Part.LineSegment(V(38.8, 41.9, 0), V(23.8, 41.9, 0)),
], False)
sketch11.addConstraint([
    Sketcher.Constraint("Coincident", 0, 2, 1, 1),
    Sketcher.Constraint("Coincident", 1, 2, 2, 1),
    Sketcher.Constraint("Coincident", 2, 2, 3, 1),
    Sketcher.Constraint("Coincident", 3, 2, 0, 1),
    Sketcher.Constraint("Vertical", 0),
    Sketcher.Constraint("Horizontal", 1),
    Sketcher.Constraint("Vertical", 2),
    Sketcher.Constraint("Horizontal", 3),
    Sketcher.Constraint("DistanceX", 1, 1, 1, 2, Q("15 mm")),
    Sketcher.Constraint("DistanceY", 0, 2, 0, 1, Q("1.6 mm")),
    Sketcher.Constraint("DistanceX", -1, 1, 0, 2, Q("23.8 mm")),
    Sketcher.Constraint("DistanceY", -1, 1, 0, 2, Q("40.3 mm")),
])
pad8 = doc.addObject("PartDesign::Pad", "Pad007")
body.addObject(pad8)
pad8.Profile = sketch11
pad8.Length = 6.8

sketch12 = doc.addObject("Sketcher::SketchObject", "Sketch011")
body.addObject(sketch12)
sketch12.AttachmentSupport = (doc.XZ_Plane, [""])
sketch12.MapMode = "FlatFace"
sketch12.AttachmentOffset = App.Placement(V(0, 0, -41.9), App.Rotation())
sketch12.addGeometry([
    Part.LineSegment(V(27.8, 11.6, 0), V(27.8, 15, 0)),
    Part.LineSegment(V(27.8, 15, 0), V(36.2, 15, 0)),
    Part.LineSegment(V(36.2, 15, 0), V(36.2, 11.6, 0)),
    Part.LineSegment(V(36.2, 11.6, 0), V(27.8, 11.6, 0)),
], False)
sketch12.addConstraint([
    Sketcher.Constraint("Coincident", 0, 2, 1, 1),
    Sketcher.Constraint("Coincident", 1, 2, 2, 1),
    Sketcher.Constraint("Coincident", 2, 2, 3, 1),
    Sketcher.Constraint("Coincident", 3, 2, 0, 1),
    Sketcher.Constraint("Vertical", 0),
    Sketcher.Constraint("Horizontal", 1),
    Sketcher.Constraint("Vertical", 2),
    Sketcher.Constraint("Horizontal", 3),
    Sketcher.Constraint("DistanceX", 1, 1, 1, 2, Q("8.4 mm")),
    Sketcher.Constraint("DistanceY", 0, 1, 0, 2, Q("3.4 mm")),
    Sketcher.Constraint("DistanceY", -1, 1, 0, 2, Q("15 mm")),
    Sketcher.Constraint("DistanceX", -1, 1, 0, 2, Q("27.8 mm")),
])
pocket4 = doc.addObject("PartDesign::Pocket", "Pocket003")
body.addObject(pocket4)
pocket4.Profile = sketch12
pocket4.Length = 6.8
pocket4.Reversed = True

sketch13 = doc.addObject("Sketcher::SketchObject", "Sketch012")
body.addObject(sketch13)
sketch13.AttachmentSupport = (doc.XY_Plane, [""])
sketch13.MapMode = "FlatFace"
sketch13.AttachmentOffset = App.Placement(V(0, 0, 8.2), App.Rotation())
sketch13.addGeometry([
    Part.LineSegment(V(60.3, -40.3, 0), V(61.9, -40.3, 0)),
    Part.LineSegment(V(61.9, -40.3, 0), V(61.9, 41.9, 0)),
    Part.LineSegment(V(61.9, 41.9, 0), V(53.1, 41.9, 0)),
    Part.LineSegment(V(53.1, 41.9, 0), V(53.1, 40.3, 0)),
    Part.LineSegment(V(53.1, 40.3, 0), V(60.3, 40.3, 0)),
    Part.LineSegment(V(60.3, 40.3, 0), V(60.3, -40.3, 0)),
], False)
sketch13.addConstraint([
    Sketcher.Constraint("Coincident", 0, 2, 1, 1),
    Sketcher.Constraint("Coincident", 1, 2, 2, 1),
    Sketcher.Constraint("Coincident", 2, 2, 3, 1),
    Sketcher.Constraint("Coincident", 3, 2, 4, 1),
    Sketcher.Constraint("Coincident", 4, 2, 5, 1),
    Sketcher.Constraint("Coincident", 5, 2, 0, 1),
    Sketcher.Constraint("Horizontal", 0),
    Sketcher.Constraint("Vertical", 1),
    Sketcher.Constraint("Horizontal", 2),
    Sketcher.Constraint("Vertical", 3),
    Sketcher.Constraint("Horizontal", 4),
    Sketcher.Constraint("Vertical", 5),
    Sketcher.Constraint("Equal", 0, 3),
    Sketcher.Constraint("DistanceX", 0, 1, 0, 2, Q("1.6 mm")),
    Sketcher.Constraint("DistanceX", 2, 2, 2, 1, Q("8.8 mm")),
    Sketcher.Constraint("DistanceY", 1, 1, 1, 2, Q("82.2 mm")),
    Sketcher.Constraint("DistanceX", -1, 1, 0, 2, Q("61.9 mm")),
    Sketcher.Constraint("DistanceY", 0, 2, -1, 1, Q("40.3 mm")),
])
pad9 = doc.addObject("PartDesign::Pad", "Pad008")
body.addObject(pad9)
pad9.Profile = sketch13
pad9.Length = 6.8

sketch14 = doc.addObject("Sketcher::SketchObject", "Sketch013")
body.addObject(sketch14)
sketch14.AttachmentSupport = (doc.XY_Plane, [""])
sketch14.MapMode = "FlatFace"
sketch14.AttachmentOffset = App.Placement(V(0, 0, 8.2), App.Rotation())
sketch14.addGeometry([
    Part.LineSegment(V(-55.3, -40.3, 0), V(-55.3, -41.9, 0)),
    Part.LineSegment(V(-55.3, -41.9, 0), V(7.3, -41.9, 0)),
    Part.LineSegment(V(7.3, -41.9, 0), V(7.3, -40.3, 0)),
    Part.LineSegment(V(7.3, -40.3, 0), V(-55.3, -40.3, 0)),
], False)
sketch14.addConstraint([
    Sketcher.Constraint("Coincident", 0, 2, 1, 1),
    Sketcher.Constraint("Coincident", 1, 2, 2, 1),
    Sketcher.Constraint("Coincident", 2, 2, 3, 1),
    Sketcher.Constraint("Coincident", 3, 2, 0, 1),
    Sketcher.Constraint("Vertical", 0),
    Sketcher.Constraint("Horizontal", 1),
    Sketcher.Constraint("Vertical", 2),
    Sketcher.Constraint("Horizontal", 3),
    Sketcher.Constraint("DistanceX", 1, 1, 1, 2, Q("62.6 mm")),
    Sketcher.Constraint("DistanceY", 0, 2, 0, 1, Q("1.6 mm")),
    Sketcher.Constraint("DistanceX", 0, 2, -1, 1, Q("55.3 mm")),
    Sketcher.Constraint("DistanceY", 0, 2, -1, 1, Q("41.9 mm")),
])
pad10 = doc.addObject("PartDesign::Pad", "Pad009")
body.addObject(pad10)
pad10.Profile = sketch14
pad10.Length = 1.2

doc.recompute()
